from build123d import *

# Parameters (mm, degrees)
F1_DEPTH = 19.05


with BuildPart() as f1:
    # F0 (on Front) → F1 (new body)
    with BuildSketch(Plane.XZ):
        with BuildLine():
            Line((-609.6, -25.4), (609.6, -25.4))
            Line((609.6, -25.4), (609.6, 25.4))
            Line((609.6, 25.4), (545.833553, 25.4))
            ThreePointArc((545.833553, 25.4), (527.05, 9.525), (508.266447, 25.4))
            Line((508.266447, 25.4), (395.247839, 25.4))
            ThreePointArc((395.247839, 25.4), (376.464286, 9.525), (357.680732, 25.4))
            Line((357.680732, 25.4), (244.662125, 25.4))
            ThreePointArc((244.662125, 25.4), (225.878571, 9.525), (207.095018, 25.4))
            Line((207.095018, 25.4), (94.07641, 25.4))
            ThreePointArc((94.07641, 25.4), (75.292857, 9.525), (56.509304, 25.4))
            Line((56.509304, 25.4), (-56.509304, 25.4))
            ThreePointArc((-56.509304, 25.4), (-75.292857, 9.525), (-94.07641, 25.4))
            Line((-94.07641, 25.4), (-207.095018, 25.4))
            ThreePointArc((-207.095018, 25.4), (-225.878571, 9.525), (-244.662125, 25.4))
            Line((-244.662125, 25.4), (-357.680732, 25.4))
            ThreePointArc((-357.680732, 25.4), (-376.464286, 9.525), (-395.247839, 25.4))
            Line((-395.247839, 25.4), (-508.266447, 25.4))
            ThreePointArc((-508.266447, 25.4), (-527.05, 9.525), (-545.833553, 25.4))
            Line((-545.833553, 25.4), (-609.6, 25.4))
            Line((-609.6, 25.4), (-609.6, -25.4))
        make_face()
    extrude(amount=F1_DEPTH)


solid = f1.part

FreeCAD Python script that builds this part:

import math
import FreeCAD as App
import Part
import Sketcher

V = App.Vector
Q = App.Units.Quantity

doc = App.newDocument("Part")
params = doc.addObject("Spreadsheet::Sheet", "Params")
for row, (alias, value) in enumerate([
    ("sketch1_width", "48 in"),
    ("sketch1_height", "2 in"),
    ("sketch1_radius", "0.75 in"),
    ("pad1_length", "0.75 in"),
], start=1):
    params.set(f"A{row}", alias)
    params.set(f"B{row}", "=" + value)
    params.setAlias(f"B{row}", alias)

body = doc.addObject("PartDesign::Body", "Body")

# Sketch on XZ plane
sketch1 = body.newObject("Sketcher::SketchObject", "Sketch")
sketch1.AttachmentSupport = (doc.getObject("XZ_Plane"), [""])
sketch1.MapMode = "FlatFace"
sketch1.addGeometry(Part.LineSegment(V(-610, -25, 0), V(610, -25, 0)), False)
sketch1.addGeometry(Part.LineSegment(V(610, -25, 0), V(610, 25, 0)), False)
sketch1.addGeometry(Part.LineSegment(V(610, 25, 0), V(546, 25, 0)), False)
sketch1.addGeometry(Part.ArcOfCircle(Part.Circle(V(527, 29, 0), V(0, 0, 1), 19), math.radians(-170), math.radians(-10)), False)
sketch1.addGeometry(Part.LineSegment(V(508, 25, 0), V(395, 25, 0)), False)
sketch1.addGeometry(Part.ArcOfCircle(Part.Circle(V(376, 29, 0), V(0, 0, 1), 19), math.radians(-170), math.radians(-10)), False)
sketch1.addGeometry(Part.LineSegment(V(358, 25, 0), V(245, 25, 0)), False)
sketch1.addGeometry(Part.ArcOfCircle(Part.Circle(V(226, 29, 0), V(0, 0, 1), 19), math.radians(-170), math.radians(-10)), False)
sketch1.addGeometry(Part.LineSegment(V(207, 25, 0), V(94, 25, 0)), False)
sketch1.addGeometry(Part.ArcOfCircle(Part.Circle(V(75, 29, 0), V(0, 0, 1), 19), math.radians(-170), math.radians(-10)), False)
sketch1.addGeometry(Part.LineSegment(V(57, 25, 0), V(-57, 25, 0)), False)
sketch1.addGeometry(Part.ArcOfCircle(Part.Circle(V(-75, 29, 0), V(0, 0, 1), 19), math.radians(-170), math.radians(-10)), False)
sketch1.addGeometry(Part.LineSegment(V(-94, 25, 0), V(-207, 25, 0)), False)
sketch1.addGeometry(Part.ArcOfCircle(Part.Circle(V(-226, 29, 0), V(0, 0, 1), 19), math.radians(-170), math.radians(-10)), False)
sketch1.addGeometry(Part.LineSegment(V(-245, 25, 0), V(-358, 25, 0)), False)
sketch1.addGeometry(Part.ArcOfCircle(Part.Circle(V(-376, 29, 0), V(0, 0, 1), 19), math.radians(-170), math.radians(-10)), False)
sketch1.addGeometry(Part.LineSegment(V(-395, 25, 0), V(-508, 25, 0)), False)
sketch1.addGeometry(Part.ArcOfCircle(Part.Circle(V(-527, 29, 0), V(0, 0, 1), 19), math.radians(-170), math.radians(-10)), False)
sketch1.addGeometry(Part.LineSegment(V(-546, 25, 0), V(-610, 25, 0)), False)
sketch1.addGeometry(Part.LineSegment(V(-610, 25, 0), V(-610, -25, 0)), False)
sketch1.addConstraint(Sketcher.Constraint("Coincident", 0, 2, 1, 1))
sketch1.addConstraint(Sketcher.Constraint("Coincident", 1, 2, 2, 1))
sketch1.addConstraint(Sketcher.Constraint("Coincident", 2, 2, 3, 2))
sketch1.addConstraint(Sketcher.Constraint("Coincident", 3, 1, 4, 1))
sketch1.addConstraint(Sketcher.Constraint("Coincident", 4, 2, 5, 2))
sketch1.addConstraint(Sketcher.Constraint("Coincident", 5, 1, 6, 1))
sketch1.addConstraint(Sketcher.Constraint("Coincident", 6, 2, 7, 2))
sketch1.addConstraint(Sketcher.Constraint("Coincident", 7, 1, 8, 1))
sketch1.addConstraint(Sketcher.Constraint("Coincident", 8, 2, 9, 2))
sketch1.addConstraint(Sketcher.Constraint("Coincident", 9, 1, 10, 1))
sketch1.addConstraint(Sketcher.Constraint("Coincident", 10, 2, 11, 2))
sketch1.addConstraint(Sketcher.Constraint("Coincident", 11, 1, 12, 1))
sketch1.addConstraint(Sketcher.Constraint("Coincident", 12, 2, 13, 2))
sketch1.addConstraint(Sketcher.Constraint("Coincident", 13, 1, 14, 1))
sketch1.addConstraint(Sketcher.Constraint("Coincident", 14, 2, 15, 2))
sketch1.addConstraint(Sketcher.Constraint("Coincident", 15, 1, 16, 1))
sketch1.addConstraint(Sketcher.Constraint("Coincident", 16, 2, 17, 2))
sketch1.addConstraint(Sketcher.Constraint("Coincident", 17, 1, 18, 1))
sketch1.addConstraint(Sketcher.Constraint("Coincident", 18, 2, 19, 1))
sketch1.addConstraint(Sketcher.Constraint("Coincident", 19, 2, 0, 1))
sketch1.addConstraint(Sketcher.Constraint("Horizontal", 0))
sketch1.addConstraint(Sketcher.Constraint("Vertical", 1))
sketch1.addConstraint(Sketcher.Constraint("Horizontal", 2))
sketch1.addConstraint(Sketcher.Constraint("Horizontal", 4))
sketch1.addConstraint(Sketcher.Constraint("Horizontal", 6))
sketch1.addConstraint(Sketcher.Constraint("Horizontal", 8))
sketch1.addConstraint(Sketcher.Constraint("Horizontal", 10))
sketch1.addConstraint(Sketcher.Constraint("Horizontal", 12))
sketch1.addConstraint(Sketcher.Constraint("Horizontal", 14))
sketch1.addConstraint(Sketcher.Constraint("Horizontal", 16))
sketch1.addConstraint(Sketcher.Constraint("Horizontal", 18))
sketch1.addConstraint(Sketcher.Constraint("Vertical", 19))
sketch1.addConstraint(Sketcher.Constraint("Equal", 3, 5))
sketch1.addConstraint(Sketcher.Constraint("Equal", 5, 7))
sketch1.addConstraint(Sketcher.Constraint("Equal", 7, 9))
sketch1.addConstraint(Sketcher.Constraint("Equal", 9, 11))
sketch1.addConstraint(Sketcher.Constraint("Equal", 11, 13))
sketch1.addConstraint(Sketcher.Constraint("Equal", 13, 15))
sketch1.addConstraint(Sketcher.Constraint("Equal", 15, 17))
sketch1.addConstraint(Sketcher.Constraint("Symmetric", 0, 2, 18, 2, -1, 1))
sketch1.addConstraint(Sketcher.Constraint("Symmetric", 9, 3, 11, 3, -2))
sketch1.addConstraint(Sketcher.Constraint("Symmetric", 7, 3, 13, 3, -2))
sketch1.addConstraint(Sketcher.Constraint("Symmetric", 5, 3, 15, 3, -2))
sketch1.addConstraint(Sketcher.Constraint("Symmetric", 3, 3, 17, 3, -2))
sketch1.addConstraint(Sketcher.Constraint("Horizontal", 3, 3, 5, 3))
sketch1.addConstraint(Sketcher.Constraint("Horizontal", 5, 3, 7, 3))
sketch1.addConstraint(Sketcher.Constraint("Horizontal", 7, 3, 9, 3))
sketch1.addConstraint(Sketcher.Constraint("Horizontal", 2, 2, 3, 1))
sketch1.addConstraint(Sketcher.Constraint("Horizontal", 4, 2, 5, 1))
sketch1.addConstraint(Sketcher.Constraint("Horizontal", 6, 2, 7, 1))
sketch1.addConstraint(Sketcher.Constraint("Horizontal", 8, 2, 9, 1))
sketch1.addConstraint(Sketcher.Constraint("Horizontal", 10, 2, 11, 1))
sketch1.addConstraint(Sketcher.Constraint("Horizontal", 12, 2, 13, 1))
sketch1.addConstraint(Sketcher.Constraint("Horizontal", 14, 2, 15, 1))
sketch1.addConstraint(Sketcher.Constraint("Horizontal", 16, 2, 17, 1))
sketch1.addConstraint(Sketcher.Constraint("Equal", 4, 6))
sketch1.addConstraint(Sketcher.Constraint("Equal", 6, 8))
sketch1.addConstraint(Sketcher.Constraint("Equal", 8, 10))
sketch1.addConstraint(Sketcher.Constraint("DistanceX", 0, 1, 0, 2, Q("48 in")))
sketch1.addConstraint(Sketcher.Constraint("DistanceY", 1, 1, 1, 2, Q("2 in")))
sketch1.addConstraint(Sketcher.Constraint("Radius", 3, Q("0.75 in")))
sketch1.addConstraint(Sketcher.Constraint("DistanceX", -1, 1, 3, 3, Q("20.75 in")))
sketch1.addConstraint(Sketcher.Constraint("DistanceY", -1, 1, 3, 3, Q("1.125 in")))
sketch1.setExpression("Constraints[58]", "Params.sketch1_width")
sketch1.setExpression("Constraints[59]", "Params.sketch1_height")
sketch1.setExpression("Constraints[60]", "Params.sketch1_radius")
pad1 = body.newObject("PartDesign::Pad", "Pad")
pad1.Profile = sketch1
pad1.setExpression("Length", "Params.pad1_length")

doc.recompute()
